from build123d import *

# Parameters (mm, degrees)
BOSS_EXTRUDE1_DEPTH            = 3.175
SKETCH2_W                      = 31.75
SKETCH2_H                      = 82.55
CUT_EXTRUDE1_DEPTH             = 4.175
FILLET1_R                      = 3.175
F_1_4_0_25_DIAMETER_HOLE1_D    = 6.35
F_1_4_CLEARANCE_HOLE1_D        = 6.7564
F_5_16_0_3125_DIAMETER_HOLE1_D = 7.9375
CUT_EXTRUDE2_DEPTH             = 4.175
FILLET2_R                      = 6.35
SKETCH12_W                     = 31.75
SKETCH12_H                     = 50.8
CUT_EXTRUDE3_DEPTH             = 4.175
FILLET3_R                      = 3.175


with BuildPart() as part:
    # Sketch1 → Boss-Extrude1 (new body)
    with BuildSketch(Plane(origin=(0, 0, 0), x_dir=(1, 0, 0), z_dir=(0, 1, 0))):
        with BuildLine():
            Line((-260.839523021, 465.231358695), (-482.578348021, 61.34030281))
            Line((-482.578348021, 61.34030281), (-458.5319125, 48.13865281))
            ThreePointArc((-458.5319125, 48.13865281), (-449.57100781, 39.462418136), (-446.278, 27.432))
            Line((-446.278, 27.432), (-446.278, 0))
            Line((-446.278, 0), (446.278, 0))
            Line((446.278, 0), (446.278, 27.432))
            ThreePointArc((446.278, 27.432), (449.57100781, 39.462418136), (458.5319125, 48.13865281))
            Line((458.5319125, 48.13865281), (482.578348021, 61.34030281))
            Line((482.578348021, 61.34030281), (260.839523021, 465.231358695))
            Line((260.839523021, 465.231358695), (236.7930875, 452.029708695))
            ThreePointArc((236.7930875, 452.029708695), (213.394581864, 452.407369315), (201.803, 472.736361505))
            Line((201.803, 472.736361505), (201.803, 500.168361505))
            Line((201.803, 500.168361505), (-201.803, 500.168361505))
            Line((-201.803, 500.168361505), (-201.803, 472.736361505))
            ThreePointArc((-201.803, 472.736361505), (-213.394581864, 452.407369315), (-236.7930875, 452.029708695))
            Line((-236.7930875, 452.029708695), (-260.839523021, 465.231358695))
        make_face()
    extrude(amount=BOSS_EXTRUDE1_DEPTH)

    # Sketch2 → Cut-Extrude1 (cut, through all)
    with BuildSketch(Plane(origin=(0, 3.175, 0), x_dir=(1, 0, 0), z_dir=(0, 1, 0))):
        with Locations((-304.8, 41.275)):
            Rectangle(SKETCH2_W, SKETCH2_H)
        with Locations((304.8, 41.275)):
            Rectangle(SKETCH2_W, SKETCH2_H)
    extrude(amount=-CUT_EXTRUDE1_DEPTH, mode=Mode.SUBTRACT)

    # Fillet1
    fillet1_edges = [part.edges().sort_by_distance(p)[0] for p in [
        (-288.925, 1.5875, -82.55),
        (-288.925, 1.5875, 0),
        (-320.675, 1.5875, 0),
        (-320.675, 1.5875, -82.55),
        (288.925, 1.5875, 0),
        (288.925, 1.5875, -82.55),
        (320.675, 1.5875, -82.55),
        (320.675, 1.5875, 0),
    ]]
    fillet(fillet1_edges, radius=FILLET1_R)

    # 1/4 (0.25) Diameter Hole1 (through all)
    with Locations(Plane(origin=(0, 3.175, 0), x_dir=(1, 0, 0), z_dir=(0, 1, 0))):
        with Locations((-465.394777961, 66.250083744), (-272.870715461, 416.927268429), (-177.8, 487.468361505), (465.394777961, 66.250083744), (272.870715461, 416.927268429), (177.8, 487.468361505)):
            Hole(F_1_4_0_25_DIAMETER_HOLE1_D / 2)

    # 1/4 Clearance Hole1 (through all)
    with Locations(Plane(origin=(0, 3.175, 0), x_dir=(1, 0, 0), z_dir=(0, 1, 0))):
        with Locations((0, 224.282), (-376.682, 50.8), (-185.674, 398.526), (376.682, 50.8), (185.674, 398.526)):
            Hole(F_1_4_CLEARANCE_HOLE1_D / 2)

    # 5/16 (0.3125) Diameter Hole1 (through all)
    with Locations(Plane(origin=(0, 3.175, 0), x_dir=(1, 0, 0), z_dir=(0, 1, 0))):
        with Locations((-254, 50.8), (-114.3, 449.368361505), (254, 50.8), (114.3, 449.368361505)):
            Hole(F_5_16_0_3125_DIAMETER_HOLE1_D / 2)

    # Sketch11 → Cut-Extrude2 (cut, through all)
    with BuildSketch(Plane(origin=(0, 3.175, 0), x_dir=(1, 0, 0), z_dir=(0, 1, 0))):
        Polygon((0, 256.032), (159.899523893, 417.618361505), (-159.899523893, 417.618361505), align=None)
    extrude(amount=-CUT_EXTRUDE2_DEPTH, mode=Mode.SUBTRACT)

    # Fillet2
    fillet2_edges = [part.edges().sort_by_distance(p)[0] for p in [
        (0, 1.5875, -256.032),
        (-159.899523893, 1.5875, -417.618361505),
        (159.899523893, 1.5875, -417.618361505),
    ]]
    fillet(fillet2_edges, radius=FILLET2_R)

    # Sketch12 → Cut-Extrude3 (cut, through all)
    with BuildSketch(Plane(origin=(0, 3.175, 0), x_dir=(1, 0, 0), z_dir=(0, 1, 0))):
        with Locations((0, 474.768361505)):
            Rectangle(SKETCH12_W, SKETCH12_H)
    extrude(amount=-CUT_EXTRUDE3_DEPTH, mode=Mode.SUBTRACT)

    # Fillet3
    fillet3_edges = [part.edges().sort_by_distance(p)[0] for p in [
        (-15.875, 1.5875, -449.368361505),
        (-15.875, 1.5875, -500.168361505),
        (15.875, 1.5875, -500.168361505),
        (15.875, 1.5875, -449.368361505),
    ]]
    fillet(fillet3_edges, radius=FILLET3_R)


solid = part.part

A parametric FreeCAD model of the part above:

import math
import FreeCAD as App
import Part
import Sketcher
from FreeCAD import Vector
Q = App.Units.Quantity


def edges_at(feature, points):
    """Names of the edges that pass closest to the given points."""
    edges = feature.Shape.Edges
    near = lambda p: min(range(len(edges)), key=lambda i: edges[i].distToShape(Part.Vertex(*p))[0])
    return sorted({f"Edge{near(p) + 1}" for p in points})

doc = App.newDocument("Part")
params = doc.addObject("Spreadsheet::Sheet", "Params")
for row, (alias, value) in enumerate([
    ("sketch1_radius", "0.93 in"),
    ("sketch1_width", "15.89 in"),
    ("sketch1_height", "1.08 in"),
    ("sketch1_length", "18.14 in"),
    ("sketch1_length2", "1.08 in"),
    ("pad1_length", "0.125 in"),
    ("sketch2_width", "1.25 in"),
    ("sketch2_height", "3.25 in"),
    ("fillet_radius", "0.125 in"),
    ("sketch3_diameter", "0.25 in"),
    ("hole_diameter", "0.25 in"),
    ("sketch4_diameter", "0.266 in"),
    ("hole2_diameter", "0.266 in"),
    ("sketch5_diameter", "0.3125 in"),
    ("hole3_diameter", "0.3125 in"),
    ("fillet2_radius", "0.25 in"),
    ("sketch7_height", "2 in"),
    ("sketch7_width", "1.25 in"),
    ("fillet3_radius", "0.125 in"),
], start=1):
    params.set(f"A{row}", alias)
    params.set(f"B{row}", "=" + value)
    params.setAlias(f"B{row}", alias)

body = doc.addObject("PartDesign::Body", "Body")

sketch1 = body.newObject("Sketcher::SketchObject", "Sketch")
sketch1.AttachmentSupport = (doc.getObject("XZ_Plane"), [""])
sketch1.MapMode = "FlatFace"
sketch1.addGeometry([
    Part.LineSegment(Vector(-261, -465, 0), Vector(-483, -61, 0)),
    Part.LineSegment(Vector(-483, -61, 0), Vector(-459, -48, 0)),
    Part.ArcOfCircle(Part.Circle(Vector(-470, -27, 0), Vector(0, 0, 1), 24), math.radians(-61), math.radians(0)),
    Part.LineSegment(Vector(-446, -27, 0), Vector(-446, 0, 0)),
    Part.LineSegment(Vector(-446, 0, 0), Vector(446, 0, 0)),
    Part.LineSegment(Vector(446, 0, 0), Vector(446, -27, 0)),
    Part.ArcOfCircle(Part.Circle(Vector(470, -27, 0), Vector(0, 0, 1), 24), math.radians(-180), math.radians(-119)),
    Part.LineSegment(Vector(459, -48, 0), Vector(483, -61, 0)),
    Part.LineSegment(Vector(483, -61, 0), Vector(261, -465, 0)),
    Part.LineSegment(Vector(261, -465, 0), Vector(237, -452, 0)),
    Part.ArcOfCircle(Part.Circle(Vector(225, -473, 0), Vector(0, 0, 1), 24), math.radians(61), math.radians(180)),
    Part.LineSegment(Vector(202, -473, 0), Vector(202, -500, 0)),
    Part.LineSegment(Vector(202, -500, 0), Vector(-202, -500, 0)),
    Part.LineSegment(Vector(-202, -500, 0), Vector(-202, -473, 0)),
    Part.ArcOfCircle(Part.Circle(Vector(-225, -473, 0), Vector(0, 0, 1), 24), math.radians(0), math.radians(119)),
    Part.LineSegment(Vector(-237, -452, 0), Vector(-261, -465, 0)),
], False)
sketch1.addConstraint([
    Sketcher.Constraint("Coincident", 0, 2, 1, 1),
    Sketcher.Constraint("Tangent", 1, 2, 2, 1),
    Sketcher.Constraint("Tangent", 2, 2, 3, 1),
    Sketcher.Constraint("Coincident", 3, 2, 4, 1),
    Sketcher.Constraint("Coincident", 4, 2, 5, 1),
    Sketcher.Constraint("Tangent", 5, 2, 6, 1),
    Sketcher.Constraint("Tangent", 6, 2, 7, 1),
    Sketcher.Constraint("Coincident", 7, 2, 8, 1),
    Sketcher.Constraint("Coincident", 8, 2, 9, 1),
    Sketcher.Constraint("Tangent", 9, 2, 10, 1),
    Sketcher.Constraint("Tangent", 10, 2, 11, 1),
    Sketcher.Constraint("Coincident", 11, 2, 12, 1),
    Sketcher.Constraint("Coincident", 12, 2, 13, 1),
    Sketcher.Constraint("Tangent", 13, 2, 14, 1),
    Sketcher.Constraint("Tangent", 14, 2, 15, 1),
    Sketcher.Constraint("Coincident", 15, 2, 0, 1),
    Sketcher.Constraint("Vertical", 3),
    Sketcher.Constraint("Horizontal", 4),
    Sketcher.Constraint("Vertical", 5),
    Sketcher.Constraint("Vertical", 11),
    Sketcher.Constraint("Horizontal", 12),
    Sketcher.Constraint("Vertical", 13),
    Sketcher.Constraint("Equal", 2, 6),
    Sketcher.Constraint("Equal", 6, 10),
    Sketcher.Constraint("Equal", 10, 14),
    Sketcher.Constraint("Symmetric", 3, 2, 4, 2, -1, 1),
    Sketcher.Constraint("Symmetric", 10, 3, 14, 3, -2),
    Sketcher.Constraint("Symmetric", 1, 2, 6, 2, -2),
    Sketcher.Constraint("Symmetric", 8, 2, 15, 2, -2),
    Sketcher.Constraint("Perpendicular", 0, 1),
    Sketcher.Constraint("Perpendicular", 7, 8),
    Sketcher.Constraint("Perpendicular", 8, 9),
    Sketcher.Constraint("Equal", 5, 11),
    Sketcher.Constraint("Equal", 7, 9),
    Sketcher.Constraint("Radius", 2, Q("0.93 in")),
    Sketcher.Constraint("DistanceX", 2, 3, 6, 3, Q("37 in")),
    Sketcher.Constraint("DistanceX", 12, 2, 12, 1, Q("15.89 in")),
    Sketcher.Constraint("DistanceY", 3, 1, 3, 2, Q("1.08 in")),
    Sketcher.Constraint("Distance", 0, Q("18.14 in")),
    Sketcher.Constraint("Distance", 1, Q("1.08 in")),
])
sketch1.setExpression("Constraints[34]", "Params.sketch1_radius")
sketch1.setExpression("Constraints[36]", "Params.sketch1_width")
sketch1.setExpression("Constraints[37]", "Params.sketch1_height")
sketch1.setExpression("Constraints[38]", "Params.sketch1_length")
sketch1.setExpression("Constraints[39]", "Params.sketch1_length2")
pad1 = body.newObject("PartDesign::Pad", "Pad")
pad1.Profile = sketch1
pad1.setExpression("Length", "Params.pad1_length")
pad1.Reversed = True

sketch2 = body.newObject("Sketcher::SketchObject", "Sketch001")
sketch2.AttachmentSupport = (doc.getObject("XZ_Plane"), [""])
sketch2.MapMode = "FlatFace"
sketch2.AttachmentOffset = App.Placement(Vector(0, 0, -0.125 * 25.4), App.Rotation())
sketch2.addGeometry([
    Part.LineSegment(Vector(-321, -83, 0), Vector(-321, 0, 0)),
    Part.LineSegment(Vector(-321, 0, 0), Vector(-289, 0, 0)),
    Part.LineSegment(Vector(-289, 0, 0), Vector(-289, -83, 0)),
    Part.LineSegment(Vector(-289, -83, 0), Vector(-321, -83, 0)),
    Part.LineSegment(Vector(289, -83, 0), Vector(289, 0, 0)),
    Part.LineSegment(Vector(289, 0, 0), Vector(321, 0, 0)),
    Part.LineSegment(Vector(321, 0, 0), Vector(321, -83, 0)),
    Part.LineSegment(Vector(321, -83, 0), Vector(289, -83, 0)),
], False)
sketch2.addConstraint([
    Sketcher.Constraint("Coincident", 0, 2, 1, 1),
    Sketcher.Constraint("Coincident", 1, 2, 2, 1),
    Sketcher.Constraint("Coincident", 2, 2, 3, 1),
    Sketcher.Constraint("Coincident", 3, 2, 0, 1),
    Sketcher.Constraint("Coincident", 4, 2, 5, 1),
    Sketcher.Constraint("Coincident", 5, 2, 6, 1),
    Sketcher.Constraint("Coincident", 6, 2, 7, 1),
    Sketcher.Constraint("Coincident", 7, 2, 4, 1),
    Sketcher.Constraint("Vertical", 0),
    Sketcher.Constraint("Horizontal", 1),
    Sketcher.Constraint("Vertical", 2),
    Sketcher.Constraint("Horizontal", 3),
    Sketcher.Constraint("Vertical", 4),
    Sketcher.Constraint("Horizontal", 5),
    Sketcher.Constraint("Vertical", 6),
    Sketcher.Constraint("Horizontal", 7),
    Sketcher.Constraint("Symmetric", 1, 2, 4, 2, -1, 1),
    Sketcher.Constraint("Symmetric", 0, 2, 5, 2, -2),
    Sketcher.Constraint("Horizontal", 3, 2, 6, 2),
    Sketcher.Constraint("DistanceX", 0, 2, 4, 2, Q("24 in")),
    Sketcher.Constraint("DistanceX", 1, 1, 1, 2, Q("1.25 in")),
    Sketcher.Constraint("DistanceY", 0, 1, 0, 2, Q("3.25 in")),
])
sketch2.setExpression("Constraints[20]", "Params.sketch2_width")
sketch2.setExpression("Constraints[21]", "Params.sketch2_height")
pocket1 = body.newObject("PartDesign::Pocket", "Pocket")
pocket1.Profile = sketch2
pocket1.Type = "ThroughAll"
pocket1.Reversed = True
doc.recompute()

fillet = body.newObject("PartDesign::Fillet", "Fillet")
fillet.Base = (pocket1, edges_at(pocket1, [
    (-288.925, 1.587, -82.55),
    (-288.925, 1.587, 0),
    (-320.675, 1.587, 0),
    (-320.675, 1.587, -82.55),
    (288.925, 1.587, 0),
    (288.925, 1.587, -82.55),
    (320.675, 1.587, -82.55),
    (320.675, 1.587, 0),
]))
fillet.setExpression("Radius", "Params.fillet_radius")

sketch3 = body.newObject("Sketcher::SketchObject", "Sketch002")
sketch3.AttachmentSupport = (doc.getObject("XZ_Plane"), [""])
sketch3.MapMode = "FlatFace"
sketch3.AttachmentOffset = App.Placement(Vector(0, 0, -0.125 * 25.4), App.Rotation())
sketch3.addGeometry([
    Part.Circle(Vector(-465.4, -66.3, 0), Vector(0, 0, 1), 3.2),
    Part.Circle(Vector(-272.9, -416.9, 0), Vector(0, 0, 1), 3.2),
    Part.Circle(Vector(-177.8, -487.5, 0), Vector(0, 0, 1), 3.2),
    Part.Circle(Vector(465.4, -66.3, 0), Vector(0, 0, 1), 3.2),
    Part.Circle(Vector(272.9, -416.9, 0), Vector(0, 0, 1), 3.2),
    Part.Circle(Vector(177.8, -487.5, 0), Vector(0, 0, 1), 3.2),
], False)
sketch3.addConstraint([
    Sketcher.Constraint("Equal", 0, 1),
    Sketcher.Constraint("Equal", 1, 2),
    Sketcher.Constraint("Equal", 2, 3),
    Sketcher.Constraint("Equal", 3, 4),
    Sketcher.Constraint("Equal", 4, 5),
    Sketcher.Constraint("Symmetric", 0, 3, 3, 3, -2),
    Sketcher.Constraint("Symmetric", 1, 3, 4, 3, -2),
    Sketcher.Constraint("Symmetric", 2, 3, 5, 3, -2),
    Sketcher.Constraint("Diameter", 0, Q("0.25 in")),
    Sketcher.Constraint("DistanceX", 2, 3, -1, 1, Q("7 in")),
    Sketcher.Constraint("DistanceY", 1, 3, -1, 1, Q("416.927268 mm")),
    Sketcher.Constraint("DistanceY", 2, 3, -1, 1, Q("487.468362 mm")),
    Sketcher.Constraint("DistanceX", 1, 3, 4, 3, Q("545.741431 mm")),
    Sketcher.Constraint("DistanceX", 0, 3, -1, 1, Q("465.394778 mm")),
    Sketcher.Constraint("DistanceY", 0, 3, -1, 1, Q("66.250084 mm")),
])
sketch3.setExpression("Constraints[8]", "Params.sketch3_diameter")
doc.recompute()
hole = body.newObject("PartDesign::Hole", "Hole")
hole.Profile = sketch3
hole.ThreadType = "None"
hole.setExpression("Diameter", "Params.hole_diameter")
hole.DepthType = "ThroughAll"
hole.Reversed = True

sketch4 = body.newObject("Sketcher::SketchObject", "Sketch003")
sketch4.AttachmentSupport = (doc.getObject("XZ_Plane"), [""])
sketch4.MapMode = "FlatFace"
sketch4.AttachmentOffset = App.Placement(Vector(0, 0, -0.125 * 25.4), App.Rotation())
sketch4.addGeometry([
    Part.Circle(Vector(0, -224.3, 0), Vector(0, 0, 1), 3.4),
    Part.Circle(Vector(-376.7, -50.8, 0), Vector(0, 0, 1), 3.4),
    Part.Circle(Vector(-185.7, -398.5, 0), Vector(0, 0, 1), 3.4),
    Part.Circle(Vector(376.7, -50.8, 0), Vector(0, 0, 1), 3.4),
    Part.Circle(Vector(185.7, -398.5, 0), Vector(0, 0, 1), 3.4),
], False)
sketch4.addConstraint([
    Sketcher.Constraint("Equal", 0, 1),
    Sketcher.Constraint("Equal", 1, 2),
    Sketcher.Constraint("Equal", 2, 3),
    Sketcher.Constraint("Equal", 3, 4),
    Sketcher.Constraint("Symmetric", 1, 3, 3, 3, -2),
    Sketcher.Constraint("Symmetric", 2, 3, 4, 3, -2),
    Sketcher.Constraint("PointOnObject", 0, 3, -2),
    Sketcher.Constraint("Diameter", 0, Q("0.266 in")),
    Sketcher.Constraint("DistanceY", 1, 3, -1, 1, Q("2 in")),
    Sketcher.Constraint("DistanceY", 0, 3, -1, 1, Q("8.83 in")),
    Sketcher.Constraint("DistanceX", 1, 3, -1, 1, Q("14.83 in")),
    Sketcher.Constraint("DistanceX", 2, 3, -1, 1, Q("7.31 in")),
    Sketcher.Constraint("DistanceY", 2, 3, -1, 1, Q("15.69 in")),
])
sketch4.setExpression("Constraints[7]", "Params.sketch4_diameter")
doc.recompute()
hole2 = body.newObject("PartDesign::Hole", "Hole001")
hole2.Profile = sketch4
hole2.ThreadType = "None"
hole2.setExpression("Diameter", "Params.hole2_diameter")
hole2.DepthType = "ThroughAll"
hole2.Reversed = True

sketch5 = body.newObject("Sketcher::SketchObject", "Sketch004")
sketch5.AttachmentSupport = (doc.getObject("XZ_Plane"), [""])
sketch5.MapMode = "FlatFace"
sketch5.AttachmentOffset = App.Placement(Vector(0, 0, -0.125 * 25.4), App.Rotation())
sketch5.addGeometry([
    Part.Circle(Vector(-254, -50.8, 0), Vector(0, 0, 1), 4),
    Part.Circle(Vector(-114.3, -449.4, 0), Vector(0, 0, 1), 4),
    Part.Circle(Vector(254, -50.8, 0), Vector(0, 0, 1), 4),
    Part.Circle(Vector(114.3, -449.4, 0), Vector(0, 0, 1), 4),
], False)
sketch5.addConstraint([
    Sketcher.Constraint("Equal", 0, 1),
    Sketcher.Constraint("Equal", 1, 2),
    Sketcher.Constraint("Equal", 2, 3),
    Sketcher.Constraint("Symmetric", 0, 3, 2, 3, -2),
    Sketcher.Constraint("Symmetric", 1, 3, 3, 3, -2),
    Sketcher.Constraint("Diameter", 0, Q("0.3125 in")),
    Sketcher.Constraint("DistanceX", 0, 3, -1, 1, Q("10 in")),
    Sketcher.Constraint("DistanceY", 0, 3, -1, 1, Q("2 in")),
    Sketcher.Constraint("DistanceX", 1, 3, 3, 3, Q("9 in")),
    Sketcher.Constraint("DistanceY", 1, 3, -1, 1, Q("449.368362 mm")),
])
sketch5.setExpression("Constraints[5]", "Params.sketch5_diameter")
doc.recompute()
hole3 = body.newObject("PartDesign::Hole", "Hole002")
hole3.Profile = sketch5
hole3.ThreadType = "None"
hole3.setExpression("Diameter", "Params.hole3_diameter")
hole3.DepthType = "ThroughAll"
hole3.Reversed = True

sketch6 = body.newObject("Sketcher::SketchObject", "Sketch005")
sketch6.AttachmentSupport = (doc.getObject("XZ_Plane"), [""])
sketch6.MapMode = "FlatFace"
sketch6.AttachmentOffset = App.Placement(Vector(0, 0, -0.125 * 25.4), App.Rotation())
sketch6.addGeometry([
    Part.LineSegment(Vector(0, -256, 0), Vector(160, -418, 0)),
    Part.LineSegment(Vector(160, -418, 0), Vector(-160, -418, 0)),
    Part.LineSegment(Vector(-160, -418, 0), Vector(0, -256, 0)),
], False)
sketch6.addConstraint([
    Sketcher.Constraint("Coincident", 0, 2, 1, 1),
    Sketcher.Constraint("Coincident", 1, 2, 2, 1),
    Sketcher.Constraint("Coincident", 2, 2, 0, 1),
    Sketcher.Constraint("Horizontal", 1),
    Sketcher.Constraint("PointOnObject", 2, 2, -2),
    Sketcher.Constraint("Equal", 0, 2),
    Sketcher.Constraint("DistanceY", 2, 2, -1, 1, Q("10.08 in")),
    Sketcher.Constraint("Distance", 0, Q("227.327979 mm")),
    Sketcher.Constraint("DistanceX", 1, 2, 1, 1, Q("319.799048 mm")),
])
pocket2 = body.newObject("PartDesign::Pocket", "Pocket001")
pocket2.Profile = sketch6
pocket2.Type = "ThroughAll"
pocket2.Reversed = True
doc.recompute()

fillet2 = body.newObject("PartDesign::Fillet", "Fillet001")
fillet2.Base = (pocket2, edges_at(pocket2, [(0, 1.587, -256.032), (-159.9, 1.587, -417.618), (159.9, 1.587, -417.618)]))
fillet2.setExpression("Radius", "Params.fillet2_radius")

sketch7 = body.newObject("Sketcher::SketchObject", "Sketch006")
sketch7.AttachmentSupport = (doc.getObject("XZ_Plane"), [""])
sketch7.MapMode = "FlatFace"
sketch7.AttachmentOffset = App.Placement(Vector(0, 0, -0.125 * 25.4), App.Rotation())
sketch7.addGeometry([
    Part.LineSegment(Vector(-16, -500, 0), Vector(-16, -449, 0)),
    Part.LineSegment(Vector(-16, -449, 0), Vector(16, -449, 0)),
    Part.LineSegment(Vector(16, -449, 0), Vector(16, -500, 0)),
    Part.LineSegment(Vector(16, -500, 0), Vector(-16, -500, 0)),
], False)
sketch7.addConstraint([
    Sketcher.Constraint("Coincident", 0, 2, 1, 1),
    Sketcher.Constraint("Coincident", 1, 2, 2, 1),
    Sketcher.Constraint("Coincident", 2, 2, 3, 1),
    Sketcher.Constraint("Coincident", 3, 2, 0, 1),
    Sketcher.Constraint("Vertical", 0),
    Sketcher.Constraint("Horizontal", 1),
    Sketcher.Constraint("Vertical", 2),
    Sketcher.Constraint("Horizontal", 3),
    Sketcher.Constraint("DistanceY", 0, 1, 0, 2, Q("2 in")),
    Sketcher.Constraint("DistanceX", 1, 1, 1, 2, Q("1.25 in")),
    Sketcher.Constraint("DistanceX", 0, 2, -1, 1, Q("0.625 in")),
    Sketcher.Constraint("DistanceY", 0, 2, -1, 1, Q("449.368362 mm")),
])
sketch7.setExpression("Constraints[8]", "Params.sketch7_height")
sketch7.setExpression("Constraints[9]", "Params.sketch7_width")
pocket3 = body.newObject("PartDesign::Pocket", "Pocket002")
pocket3.Profile = sketch7
pocket3.Type = "ThroughAll"
pocket3.Reversed = True
doc.recompute()

fillet3 = body.newObject("PartDesign::Fillet", "Fillet002")
fillet3.Base = (pocket3, edges_at(pocket3, [
    (-15.875, 1.587, -449.368),
    (-15.875, 1.587, -500.168),
    (15.875, 1.587, -500.168),
    (15.875, 1.587, -449.368),
]))
fillet3.setExpression("Radius", "Params.fillet3_radius")

doc.recompute()
